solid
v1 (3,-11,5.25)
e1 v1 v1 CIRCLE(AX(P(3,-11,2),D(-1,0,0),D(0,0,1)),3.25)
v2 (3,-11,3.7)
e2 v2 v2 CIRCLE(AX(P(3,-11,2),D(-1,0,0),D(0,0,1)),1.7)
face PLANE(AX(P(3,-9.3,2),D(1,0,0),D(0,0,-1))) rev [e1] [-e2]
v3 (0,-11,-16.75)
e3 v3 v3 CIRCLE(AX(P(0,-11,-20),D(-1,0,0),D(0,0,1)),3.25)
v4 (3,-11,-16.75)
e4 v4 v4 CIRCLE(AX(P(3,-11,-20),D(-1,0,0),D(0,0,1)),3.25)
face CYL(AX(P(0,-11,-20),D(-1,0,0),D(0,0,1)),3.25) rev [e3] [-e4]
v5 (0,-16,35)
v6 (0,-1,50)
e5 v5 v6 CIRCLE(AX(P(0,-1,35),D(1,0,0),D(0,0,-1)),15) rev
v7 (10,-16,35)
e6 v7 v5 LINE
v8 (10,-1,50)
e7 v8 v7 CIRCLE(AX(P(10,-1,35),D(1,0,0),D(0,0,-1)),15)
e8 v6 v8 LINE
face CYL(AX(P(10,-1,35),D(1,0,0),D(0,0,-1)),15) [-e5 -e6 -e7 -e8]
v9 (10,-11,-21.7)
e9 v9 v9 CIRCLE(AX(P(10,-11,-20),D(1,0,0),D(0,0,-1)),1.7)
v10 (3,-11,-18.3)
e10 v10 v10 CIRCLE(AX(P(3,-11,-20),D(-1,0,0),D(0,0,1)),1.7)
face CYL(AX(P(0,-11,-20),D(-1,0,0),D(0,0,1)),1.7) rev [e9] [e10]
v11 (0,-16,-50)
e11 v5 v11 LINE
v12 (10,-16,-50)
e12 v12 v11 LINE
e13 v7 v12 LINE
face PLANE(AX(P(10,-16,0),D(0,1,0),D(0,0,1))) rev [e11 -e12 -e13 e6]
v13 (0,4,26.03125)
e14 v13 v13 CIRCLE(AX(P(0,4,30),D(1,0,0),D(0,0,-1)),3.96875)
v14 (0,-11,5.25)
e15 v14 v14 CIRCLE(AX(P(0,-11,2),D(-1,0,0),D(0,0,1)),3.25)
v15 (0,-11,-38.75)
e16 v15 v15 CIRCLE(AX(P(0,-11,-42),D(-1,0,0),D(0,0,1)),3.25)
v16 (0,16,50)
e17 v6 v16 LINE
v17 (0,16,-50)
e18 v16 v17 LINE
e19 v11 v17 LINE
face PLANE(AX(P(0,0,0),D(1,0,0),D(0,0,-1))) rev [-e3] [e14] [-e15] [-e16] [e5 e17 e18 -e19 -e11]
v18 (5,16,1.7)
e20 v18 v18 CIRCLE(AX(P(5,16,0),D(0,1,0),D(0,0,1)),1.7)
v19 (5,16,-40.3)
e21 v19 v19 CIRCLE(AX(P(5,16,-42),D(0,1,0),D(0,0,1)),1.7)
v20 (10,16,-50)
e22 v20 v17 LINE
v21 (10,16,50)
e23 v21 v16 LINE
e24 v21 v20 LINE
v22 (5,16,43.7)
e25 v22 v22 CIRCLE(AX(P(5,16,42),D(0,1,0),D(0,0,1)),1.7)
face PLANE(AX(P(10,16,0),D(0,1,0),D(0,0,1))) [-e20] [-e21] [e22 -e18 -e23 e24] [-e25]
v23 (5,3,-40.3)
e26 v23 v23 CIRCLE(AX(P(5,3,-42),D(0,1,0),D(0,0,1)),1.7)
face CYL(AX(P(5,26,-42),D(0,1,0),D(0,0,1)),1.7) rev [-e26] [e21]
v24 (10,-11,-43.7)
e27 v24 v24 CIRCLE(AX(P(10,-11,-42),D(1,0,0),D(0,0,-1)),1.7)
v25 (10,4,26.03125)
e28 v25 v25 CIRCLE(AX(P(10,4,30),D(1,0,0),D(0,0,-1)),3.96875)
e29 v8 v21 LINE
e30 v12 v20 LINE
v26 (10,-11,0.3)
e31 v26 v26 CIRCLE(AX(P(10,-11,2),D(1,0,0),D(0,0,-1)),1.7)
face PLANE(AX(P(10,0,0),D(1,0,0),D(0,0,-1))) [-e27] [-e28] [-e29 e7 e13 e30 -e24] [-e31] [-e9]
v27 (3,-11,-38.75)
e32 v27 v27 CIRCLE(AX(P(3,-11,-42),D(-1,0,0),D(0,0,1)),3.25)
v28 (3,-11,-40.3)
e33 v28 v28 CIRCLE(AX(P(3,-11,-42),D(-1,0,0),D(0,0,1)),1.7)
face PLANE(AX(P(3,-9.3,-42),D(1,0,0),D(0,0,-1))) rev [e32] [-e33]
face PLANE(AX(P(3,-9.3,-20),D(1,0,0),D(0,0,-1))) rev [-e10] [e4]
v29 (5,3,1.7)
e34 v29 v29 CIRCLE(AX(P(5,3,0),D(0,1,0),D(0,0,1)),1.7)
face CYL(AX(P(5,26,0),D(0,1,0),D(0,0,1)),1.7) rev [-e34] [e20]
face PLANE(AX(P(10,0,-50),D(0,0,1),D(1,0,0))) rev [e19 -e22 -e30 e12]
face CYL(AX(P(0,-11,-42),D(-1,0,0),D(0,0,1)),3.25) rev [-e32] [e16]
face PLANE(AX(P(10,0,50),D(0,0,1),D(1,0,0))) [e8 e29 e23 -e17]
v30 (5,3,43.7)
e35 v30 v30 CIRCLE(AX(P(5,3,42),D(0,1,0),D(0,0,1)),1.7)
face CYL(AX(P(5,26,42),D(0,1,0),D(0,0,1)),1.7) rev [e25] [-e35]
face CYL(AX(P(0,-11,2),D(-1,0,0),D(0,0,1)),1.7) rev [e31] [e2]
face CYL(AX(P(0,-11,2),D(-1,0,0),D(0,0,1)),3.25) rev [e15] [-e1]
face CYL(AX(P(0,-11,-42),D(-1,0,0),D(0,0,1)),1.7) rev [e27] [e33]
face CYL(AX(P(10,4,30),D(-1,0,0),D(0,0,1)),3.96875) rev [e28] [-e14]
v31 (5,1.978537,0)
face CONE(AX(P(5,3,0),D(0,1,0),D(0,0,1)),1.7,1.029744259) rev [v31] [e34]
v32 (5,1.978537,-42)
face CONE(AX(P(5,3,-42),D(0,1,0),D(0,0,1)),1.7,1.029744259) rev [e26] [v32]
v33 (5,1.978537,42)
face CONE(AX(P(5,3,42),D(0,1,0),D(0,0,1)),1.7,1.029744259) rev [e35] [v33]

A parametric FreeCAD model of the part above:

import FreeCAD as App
import Part
import Sketcher

V = App.Vector


def edges_at(feature, points):
    """Names of the edges that pass closest to the given points."""
    edges = feature.Shape.Edges
    near = lambda p: min(range(len(edges)), key=lambda i: edges[i].distToShape(Part.Vertex(*p))[0])
    return sorted({f"Edge{near(p) + 1}" for p in points})


def add_polygon(sketch, points):
    """Adds a closed chain of lines whose ends are joined by coincident constraints."""
    first, n = sketch.GeometryCount, len(points)
    for a, b in zip(points, points[1:] + points[:1]):
        sketch.addGeometry(Part.LineSegment(App.Vector(*a, 0), App.Vector(*b, 0)), False)
    for i in range(n):
        sketch.addConstraint(Sketcher.Constraint("Coincident", first + i, 2, first + (i + 1) % n, 1))

doc = App.newDocument("Part")
params = doc.addObject("Spreadsheet::Sheet", "Params")
for row, (alias, value) in enumerate([
    ("sketch1_width", "32 mm"),
    ("sketch1_height", "100 mm"),
    ("pad1_length", "10 mm"),
    ("fillet_radius", "15 mm"),
    ("sketch2_diameter", "3.4 mm"),
    ("hole_diameter", "3.4 mm"),
    ("hole_depth", "23 mm"),
    ("hole_cbore_diameter", "6.5 mm"),
    ("hole_cbore_depth", "3 mm"),
    ("sketch3_diameter", "3.4 mm"),
    ("hole2_diameter", "3.4 mm"),
    ("hole2_depth", "23 mm"),
    ("hole2_cbore_diameter", "6.5 mm"),
    ("hole2_cbore_depth", "3 mm"),
], start=1):
    params.set(f"A{row}", alias)
    params.set(f"B{row}", "=" + value)
    params.setAlias(f"B{row}", alias)

body = doc.addObject("PartDesign::Body", "Body")

sketch1 = doc.addObject("Sketcher::SketchObject", "Sketch")
body.addObject(sketch1)
sketch1.AttachmentSupport = (doc.YZ_Plane, [""])
sketch1.MapMode = "FlatFace"
add_polygon(sketch1, [(16, 50), (-16, 50), (-16, -50), (16, -50)])
sketch1.addGeometry(Part.Circle(V(4, 30, 0), V(0, 0, 1), 3.96875), False)
sketch1.addConstraint(Sketcher.Constraint("Horizontal", 0))
sketch1.addConstraint(Sketcher.Constraint("Vertical", 1))
sketch1.addConstraint(Sketcher.Constraint("Horizontal", 2))
sketch1.addConstraint(Sketcher.Constraint("Vertical", 3))
sketch1.addConstraint(Sketcher.Constraint("Symmetric", 0, 2, 2, 2, -1, 1))
sketch1.addConstraint(Sketcher.Constraint("DistanceX", 0, 2, 0, 1, 32.0))
sketch1.addConstraint(Sketcher.Constraint("DistanceY", 1, 2, 1, 1, 100.0))
sketch1.addConstraint(Sketcher.Constraint("DistanceX", -1, 1, 4, 3, 4.0))
sketch1.addConstraint(Sketcher.Constraint("DistanceY", -1, 1, 4, 3, 30.0))
sketch1.addConstraint(Sketcher.Constraint("Diameter", 4, 7.9375))
sketch1.setExpression("Constraints[9]", "Params.sketch1_width")
sketch1.setExpression("Constraints[10]", "Params.sketch1_height")
pad1 = doc.addObject("PartDesign::Pad", "Pad")
body.addObject(pad1)
pad1.Profile = sketch1
pad1.setExpression("Length", "Params.pad1_length")
doc.recompute()

fillet = doc.addObject("PartDesign::Fillet", "Fillet")
body.addObject(fillet)
fillet.Base = (pad1, edges_at(pad1, [(5, -16, 50)]))
fillet.setExpression("Radius", "Params.fillet_radius")

sketch2 = doc.addObject("Sketcher::SketchObject", "Sketch001")
body.addObject(sketch2)
sketch2.AttachmentSupport = (doc.XZ_Plane, [""])
sketch2.MapMode = "FlatFace"
sketch2.AttachmentOffset = App.Placement(V(0, 0, -26), App.Rotation())
sketch2.addGeometry(Part.Circle(V(115, -42, 0), V(0, 0, 1), 1.7), False)
sketch2.addGeometry(Part.Circle(V(115, 20, 0), V(0, 0, 1), 1.7), False)
sketch2.addGeometry(Part.Circle(V(5, -42, 0), V(0, 0, 1), 1.7), False)
sketch2.addGeometry(Part.Circle(V(5, 42, 0), V(0, 0, 1), 1.7), False)
sketch2.addGeometry(Part.Circle(V(5, 0, 0), V(0, 0, 1), 1.7), False)
sketch2.addGeometry(Part.Circle(V(115, -11, 0), V(0, 0, 1), 1.7), False)
sketch2.addConstraint(Sketcher.Constraint("Equal", 0, 1))
sketch2.addConstraint(Sketcher.Constraint("Equal", 1, 2))
sketch2.addConstraint(Sketcher.Constraint("Equal", 2, 3))
sketch2.addConstraint(Sketcher.Constraint("Equal", 3, 4))
sketch2.addConstraint(Sketcher.Constraint("Equal", 4, 5))
sketch2.addConstraint(Sketcher.Constraint("Symmetric", 2, 3, 3, 3, -1))
sketch2.addConstraint(Sketcher.Constraint("PointOnObject", 4, 3, -1))
sketch2.addConstraint(Sketcher.Constraint("Horizontal", 0, 3, 2, 3))
sketch2.addConstraint(Sketcher.Constraint("Vertical", 0, 3, 1, 3))
sketch2.addConstraint(Sketcher.Constraint("Vertical", 3, 3, 4, 3))
sketch2.addConstraint(Sketcher.Constraint("Vertical", 1, 3, 5, 3))
sketch2.addConstraint(Sketcher.Constraint("Diameter", 0, 3.4))
sketch2.addConstraint(Sketcher.Constraint("DistanceX", -1, 1, 0, 3, 115.0))
sketch2.addConstraint(Sketcher.Constraint("DistanceY", 0, 3, -1, 1, 42.0))
sketch2.addConstraint(Sketcher.Constraint("DistanceY", -1, 1, 1, 3, 20.0))
sketch2.addConstraint(Sketcher.Constraint("DistanceX", -1, 1, 2, 3, 5.0))
sketch2.addConstraint(Sketcher.Constraint("DistanceY", 5, 3, -1, 1, 11.0))
sketch2.setExpression("Constraints[11]", "Params.sketch2_diameter")
doc.recompute()
hole = doc.addObject("PartDesign::Hole", "Hole")
body.addObject(hole)
hole.Profile = sketch2
hole.ThreadType = "None"
hole.setExpression("Diameter", "Params.hole_diameter")
hole.DepthType = "Dimension"
hole.setExpression("Depth", "Params.hole_depth")
hole.DrillPoint = "Angled"
hole.DrillPointAngle = 118
hole.HoleCutType = "Counterbore"
hole.setExpression("HoleCutDiameter", "Params.hole_cbore_diameter")
hole.setExpression("HoleCutDepth", "Params.hole_cbore_depth")
hole.Reversed = True

sketch3 = doc.addObject("Sketcher::SketchObject", "Sketch002")
body.addObject(sketch3)
sketch3.AttachmentSupport = (doc.YZ_Plane, [""])
sketch3.MapMode = "FlatFace"
sketch3.addGeometry(Part.Circle(V(-11, -42, 0), V(0, 0, 1), 1.7), False)
sketch3.addGeometry(Part.Circle(V(-11, 2, 0), V(0, 0, 1), 1.7), False)
sketch3.addGeometry(Part.Circle(V(-11, -20, 0), V(0, 0, 1), 1.7), False)
sketch3.addConstraint(Sketcher.Constraint("Equal", 0, 1))
sketch3.addConstraint(Sketcher.Constraint("Equal", 1, 2))
sketch3.addConstraint(Sketcher.Constraint("Vertical", 0, 3, 1, 3))
sketch3.addConstraint(Sketcher.Constraint("Vertical", 1, 3, 2, 3))
sketch3.addConstraint(Sketcher.Constraint("Diameter", 0, 3.4))
sketch3.addConstraint(Sketcher.Constraint("DistanceX", 0, 3, -1, 1, 11.0))
sketch3.addConstraint(Sketcher.Constraint("DistanceY", 0, 3, -1, 1, 42.0))
sketch3.addConstraint(Sketcher.Constraint("DistanceY", -1, 1, 1, 3, 2.0))
sketch3.addConstraint(Sketcher.Constraint("DistanceY", 2, 3, -1, 1, 20.0))
sketch3.setExpression("Constraints[4]", "Params.sketch3_diameter")
doc.recompute()
hole2 = doc.addObject("PartDesign::Hole", "Hole001")
body.addObject(hole2)
hole2.Profile = sketch3
hole2.ThreadType = "None"
hole2.setExpression("Diameter", "Params.hole2_diameter")
hole2.DepthType = "Dimension"
hole2.setExpression("Depth", "Params.hole2_depth")
hole2.DrillPoint = "Angled"
hole2.DrillPointAngle = 118
hole2.HoleCutType = "Counterbore"
hole2.setExpression("HoleCutDiameter", "Params.hole2_cbore_diameter")
hole2.setExpression("HoleCutDepth", "Params.hole2_cbore_depth")
hole2.Reversed = True

doc.recompute()
